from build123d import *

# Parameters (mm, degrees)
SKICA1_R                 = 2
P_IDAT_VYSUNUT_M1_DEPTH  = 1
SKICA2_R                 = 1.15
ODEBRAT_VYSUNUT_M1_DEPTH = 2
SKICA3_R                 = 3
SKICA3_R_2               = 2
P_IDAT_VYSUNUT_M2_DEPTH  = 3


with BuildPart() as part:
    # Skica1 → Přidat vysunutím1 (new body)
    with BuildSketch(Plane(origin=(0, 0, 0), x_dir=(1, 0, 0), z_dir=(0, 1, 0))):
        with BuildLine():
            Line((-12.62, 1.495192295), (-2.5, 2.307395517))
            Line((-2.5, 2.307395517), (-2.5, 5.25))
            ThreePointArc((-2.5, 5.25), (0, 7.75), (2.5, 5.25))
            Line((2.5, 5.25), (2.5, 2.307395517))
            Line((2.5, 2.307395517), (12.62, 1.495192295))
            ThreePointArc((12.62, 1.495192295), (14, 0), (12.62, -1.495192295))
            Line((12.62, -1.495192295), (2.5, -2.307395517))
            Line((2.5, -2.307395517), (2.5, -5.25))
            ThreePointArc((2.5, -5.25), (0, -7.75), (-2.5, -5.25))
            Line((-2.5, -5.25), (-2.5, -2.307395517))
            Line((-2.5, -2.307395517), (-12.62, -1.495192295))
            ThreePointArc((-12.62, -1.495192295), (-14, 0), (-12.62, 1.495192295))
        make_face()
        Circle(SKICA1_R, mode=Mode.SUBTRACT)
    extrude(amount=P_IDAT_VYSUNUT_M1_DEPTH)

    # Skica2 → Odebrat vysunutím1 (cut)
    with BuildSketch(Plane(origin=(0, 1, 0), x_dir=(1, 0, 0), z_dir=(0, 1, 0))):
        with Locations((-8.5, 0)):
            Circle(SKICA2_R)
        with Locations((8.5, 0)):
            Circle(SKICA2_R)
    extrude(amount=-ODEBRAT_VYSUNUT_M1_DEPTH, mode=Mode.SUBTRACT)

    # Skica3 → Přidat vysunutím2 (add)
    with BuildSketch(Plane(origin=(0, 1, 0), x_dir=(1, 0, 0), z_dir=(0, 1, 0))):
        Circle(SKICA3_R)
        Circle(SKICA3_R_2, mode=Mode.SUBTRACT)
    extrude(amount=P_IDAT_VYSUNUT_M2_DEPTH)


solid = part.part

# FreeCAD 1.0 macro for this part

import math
import FreeCAD as App
import Part
import Sketcher

V = App.Vector
Q = App.Units.Quantity

doc = App.newDocument("Part")
params = doc.addObject("Spreadsheet::Sheet", "Params")
for row, (alias, value) in enumerate([
    ("sketch1_diameter", "4 mm"),
    ("sketch1_radius", "1.5 mm"),
    ("sketch1_radius2", "2.5 mm"),
    ("pad1_length", "1 mm"),
    ("sketch2_diameter", "2.3 mm"),
    ("pocket1_length", "2 mm"),
    ("sketch3_diameter", "6 mm"),
    ("sketch3_diameter2", "4 mm"),
    ("pad2_length", "3 mm"),
], start=1):
    params.set(f"A{row}", alias)
    params.set(f"B{row}", "=" + value)
    params.setAlias(f"B{row}", alias)

body = doc.addObject("PartDesign::Body", "Body")

sketch1 = body.newObject("Sketcher::SketchObject", "Sketch")
sketch1.AttachmentSupport = (doc.getObject("XZ_Plane"), [""])
sketch1.MapMode = "FlatFace"
sketch1.addGeometry([
    Part.LineSegment(V(-2.5, -2.3, 0), V(-12.6, -1.5, 0)),
    Part.ArcOfCircle(Part.Circle(V(-12.5, 0, 0), V(0, 0, 1), 1.5), math.radians(95), math.radians(265)),
    Part.LineSegment(V(-12.6, 1.5, 0), V(-2.5, 2.3, 0)),
    Part.LineSegment(V(-2.5, 2.3, 0), V(-2.5, 5.2, 0)),
    Part.ArcOfCircle(Part.Circle(V(0, 5.2, 0), V(0, 0, 1), 2.5), math.radians(0), math.radians(180)),
    Part.LineSegment(V(2.5, 5.2, 0), V(2.5, 2.3, 0)),
    Part.LineSegment(V(2.5, 2.3, 0), V(12.6, 1.5, 0)),
    Part.ArcOfCircle(Part.Circle(V(12.5, 0, 0), V(0, 0, 1), 1.5), math.radians(-85), math.radians(85)),
    Part.LineSegment(V(12.6, -1.5, 0), V(2.5, -2.3, 0)),
    Part.LineSegment(V(2.5, -2.3, 0), V(2.5, -5.2, 0)),
    Part.ArcOfCircle(Part.Circle(V(0, -5.2, 0), V(0, 0, 1), 2.5), math.radians(180), math.radians(360)),
    Part.LineSegment(V(-2.5, -5.2, 0), V(-2.5, -2.3, 0)),
    Part.Circle(V(0, 0, 0), V(0, 0, 1), 2),
], False)
sketch1.addConstraint([
    Sketcher.Constraint("Tangent", 0, 2, 1, 2),
    Sketcher.Constraint("Tangent", 1, 1, 2, 1),
    Sketcher.Constraint("Coincident", 2, 2, 3, 1),
    Sketcher.Constraint("Tangent", 3, 2, 4, 2),
    Sketcher.Constraint("Tangent", 4, 1, 5, 1),
    Sketcher.Constraint("Coincident", 5, 2, 6, 1),
    Sketcher.Constraint("Tangent", 6, 2, 7, 2),
    Sketcher.Constraint("Tangent", 7, 1, 8, 1),
    Sketcher.Constraint("Coincident", 8, 2, 9, 1),
    Sketcher.Constraint("Tangent", 9, 2, 10, 2),
    Sketcher.Constraint("Tangent", 10, 1, 11, 1),
    Sketcher.Constraint("Coincident", 11, 2, 0, 1),
    Sketcher.Constraint("Vertical", 3),
    Sketcher.Constraint("Vertical", 5),
    Sketcher.Constraint("Vertical", 9),
    Sketcher.Constraint("Vertical", 11),
    Sketcher.Constraint("Coincident", 12, 3, -1, 1),
    Sketcher.Constraint("Equal", 1, 7),
    Sketcher.Constraint("Equal", 4, 10),
    Sketcher.Constraint("Symmetric", 1, 3, 7, 3, -1, 1),
    Sketcher.Constraint("Symmetric", 4, 3, 10, 3, -1, 1),
    Sketcher.Constraint("Symmetric", 2, 2, 5, 2, -2),
    Sketcher.Constraint("Symmetric", 0, 2, 7, 1, -2),
    Sketcher.Constraint("Parallel", 0, 6),
    Sketcher.Constraint("Diameter", 12, Q("4 mm")),
    Sketcher.Constraint("Radius", 1, Q("1.5 mm")),
    Sketcher.Constraint("Radius", 4, Q("2.5 mm")),
    Sketcher.Constraint("DistanceX", 1, 3, 7, 3, Q("25 mm")),
    Sketcher.Constraint("DistanceY", 10, 3, 4, 3, Q("10.5 mm")),
    Sketcher.Constraint("DistanceX", 0, 2, -1, 1, Q("12.62 mm")),
])
sketch1.setExpression("Constraints[24]", "Params.sketch1_diameter")
sketch1.setExpression("Constraints[25]", "Params.sketch1_radius")
sketch1.setExpression("Constraints[26]", "Params.sketch1_radius2")
pad1 = body.newObject("PartDesign::Pad", "Pad")
pad1.Profile = sketch1
pad1.setExpression("Length", "Params.pad1_length")
pad1.Reversed = True

sketch2 = body.newObject("Sketcher::SketchObject", "Sketch001")
sketch2.AttachmentSupport = (doc.getObject("XZ_Plane"), [""])
sketch2.MapMode = "FlatFace"
sketch2.AttachmentOffset = App.Placement(V(0, 0, -1), App.Rotation())
sketch2.addGeometry([
    Part.Circle(V(-8.5, 0, 0), V(0, 0, 1), 1.1),
    Part.Circle(V(8.5, 0, 0), V(0, 0, 1), 1.1),
], False)
sketch2.addConstraint([
    Sketcher.Constraint("Equal", 0, 1),
    Sketcher.Constraint("Symmetric", 0, 3, 1, 3, -1, 1),
    Sketcher.Constraint("PointOnObject", 0, 3, -1),
    Sketcher.Constraint("Diameter", 0, Q("2.3 mm")),
    Sketcher.Constraint("DistanceX", 0, 3, 1, 3, Q("17 mm")),
])
sketch2.setExpression("Constraints[3]", "Params.sketch2_diameter")
pocket1 = body.newObject("PartDesign::Pocket", "Pocket")
pocket1.Profile = sketch2
pocket1.setExpression("Length", "Params.pocket1_length")
pocket1.Reversed = True

sketch3 = body.newObject("Sketcher::SketchObject", "Sketch002")
sketch3.AttachmentSupport = (doc.getObject("XZ_Plane"), [""])
sketch3.MapMode = "FlatFace"
sketch3.AttachmentOffset = App.Placement(V(0, 0, -1), App.Rotation())
sketch3.addGeometry([
    Part.Circle(V(0, 0, 0), V(0, 0, 1), 3),
    Part.Circle(V(0, 0, 0), V(0, 0, 1), 2),
], False)
sketch3.addConstraint([
    Sketcher.Constraint("Coincident", 0, 3, -1, 1),
    Sketcher.Constraint("Coincident", 1, 3, -1, 1),
    Sketcher.Constraint("Diameter", 0, Q("6 mm")),
    Sketcher.Constraint("Diameter", 1, Q("4 mm")),
])
sketch3.setExpression("Constraints[2]", "Params.sketch3_diameter")
sketch3.setExpression("Constraints[3]", "Params.sketch3_diameter2")
pad2 = body.newObject("PartDesign::Pad", "Pad001")
pad2.Profile = sketch3
pad2.setExpression("Length", "Params.pad2_length")
pad2.Reversed = True

doc.recompute()
